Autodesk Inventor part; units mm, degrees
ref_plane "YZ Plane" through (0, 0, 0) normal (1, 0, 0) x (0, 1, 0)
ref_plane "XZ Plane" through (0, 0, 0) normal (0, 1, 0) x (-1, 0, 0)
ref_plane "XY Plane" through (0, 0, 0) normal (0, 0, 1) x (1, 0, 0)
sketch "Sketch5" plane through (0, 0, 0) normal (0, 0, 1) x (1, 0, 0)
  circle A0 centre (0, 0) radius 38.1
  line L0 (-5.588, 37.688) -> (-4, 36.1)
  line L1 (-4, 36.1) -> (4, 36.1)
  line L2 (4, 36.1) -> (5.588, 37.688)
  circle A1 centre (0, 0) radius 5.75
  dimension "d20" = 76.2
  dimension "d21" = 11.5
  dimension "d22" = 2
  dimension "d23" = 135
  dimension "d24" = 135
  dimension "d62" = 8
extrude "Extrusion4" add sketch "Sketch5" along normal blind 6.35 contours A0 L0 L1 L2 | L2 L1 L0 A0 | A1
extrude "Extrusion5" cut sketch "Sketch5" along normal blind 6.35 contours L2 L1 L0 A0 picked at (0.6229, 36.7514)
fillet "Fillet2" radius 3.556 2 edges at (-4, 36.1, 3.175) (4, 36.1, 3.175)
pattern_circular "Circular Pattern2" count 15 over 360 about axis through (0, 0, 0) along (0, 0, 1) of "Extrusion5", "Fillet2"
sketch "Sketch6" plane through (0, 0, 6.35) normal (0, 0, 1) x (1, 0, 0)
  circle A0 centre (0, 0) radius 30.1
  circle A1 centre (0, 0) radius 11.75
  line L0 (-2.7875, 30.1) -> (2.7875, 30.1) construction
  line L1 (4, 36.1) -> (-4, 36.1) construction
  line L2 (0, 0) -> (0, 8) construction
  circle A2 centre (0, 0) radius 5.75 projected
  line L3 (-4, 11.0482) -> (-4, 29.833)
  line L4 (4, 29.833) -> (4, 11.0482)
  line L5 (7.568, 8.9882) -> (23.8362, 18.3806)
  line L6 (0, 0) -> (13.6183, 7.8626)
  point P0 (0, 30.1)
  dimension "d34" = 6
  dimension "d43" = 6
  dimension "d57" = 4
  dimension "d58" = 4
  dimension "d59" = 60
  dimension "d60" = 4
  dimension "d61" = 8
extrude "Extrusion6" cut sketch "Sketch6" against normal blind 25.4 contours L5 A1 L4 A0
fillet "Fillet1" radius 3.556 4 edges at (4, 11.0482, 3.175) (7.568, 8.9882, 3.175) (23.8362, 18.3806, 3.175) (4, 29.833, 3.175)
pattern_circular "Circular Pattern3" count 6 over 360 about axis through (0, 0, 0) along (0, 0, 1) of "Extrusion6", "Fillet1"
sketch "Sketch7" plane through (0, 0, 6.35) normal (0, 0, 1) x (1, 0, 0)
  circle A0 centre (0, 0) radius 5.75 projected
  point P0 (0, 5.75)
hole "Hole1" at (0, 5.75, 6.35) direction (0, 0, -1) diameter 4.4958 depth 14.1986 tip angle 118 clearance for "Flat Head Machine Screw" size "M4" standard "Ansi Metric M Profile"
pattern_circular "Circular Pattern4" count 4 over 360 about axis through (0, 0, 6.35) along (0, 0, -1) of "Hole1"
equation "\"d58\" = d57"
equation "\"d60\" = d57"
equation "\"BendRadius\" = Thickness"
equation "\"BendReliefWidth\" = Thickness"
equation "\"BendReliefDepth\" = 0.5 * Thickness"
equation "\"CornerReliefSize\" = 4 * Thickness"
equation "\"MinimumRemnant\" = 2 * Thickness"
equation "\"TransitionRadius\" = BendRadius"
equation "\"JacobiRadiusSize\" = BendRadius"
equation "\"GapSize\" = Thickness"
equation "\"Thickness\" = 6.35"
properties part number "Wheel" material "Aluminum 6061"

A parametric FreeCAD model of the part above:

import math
import FreeCAD as App
import Part
import Sketcher

V = App.Vector
Q = App.Units.Quantity


def edges_at(feature, points):
    """Names of the edges that pass closest to the given points."""
    edges = feature.Shape.Edges
    near = lambda p: min(range(len(edges)), key=lambda i: edges[i].distToShape(Part.Vertex(*p))[0])
    return sorted({f"Edge{near(p) + 1}" for p in points})

doc = App.newDocument("Part")
body = doc.addObject("PartDesign::Body", "Body")

# Sketch on XY plane
sketch1 = body.newObject("Sketcher::SketchObject", "Sketch")
sketch1.AttachmentSupport = (doc.getObject("XY_Plane"), [""])
sketch1.MapMode = "FlatFace"
sketch1.addGeometry(Part.Circle(V(0, 0, 0), V(0, 0, 1), 38.1), False)
sketch1.addConstraint([
    Sketcher.Constraint("Coincident", 0, 3, -1, 1),
    Sketcher.Constraint("Diameter", 0, Q("3 in")),
])
pad1 = body.newObject("PartDesign::Pad", "Pad")
pad1.Profile = sketch1
pad1.Length = Q("0.25 in")

# Sketch on XY plane
sketch2 = body.newObject("Sketcher::SketchObject", "Sketch001")
sketch2.AttachmentSupport = (doc.getObject("XY_Plane"), [""])
sketch2.MapMode = "FlatFace"
sketch2.addGeometry([
    Part.LineSegment(V(4, 36.1, 0), V(5.588, 37.688, 0)),
    Part.ArcOfCircle(Part.Circle(V(0, 0, 0), V(0, 0, 1), 38.1), math.radians(81.566199), math.radians(98.433801)),
    Part.LineSegment(V(-5.588, 37.688, 0), V(-4, 36.1, 0)),
    Part.LineSegment(V(-4, 36.1, 0), V(4, 36.1, 0)),
], False)
sketch2.addConstraint([
    Sketcher.Constraint("Coincident", 0, 2, 1, 1),
    Sketcher.Constraint("Coincident", 1, 2, 2, 1),
    Sketcher.Constraint("Coincident", 2, 2, 3, 1),
    Sketcher.Constraint("Coincident", 3, 2, 0, 1),
    Sketcher.Constraint("Horizontal", 3),
    Sketcher.Constraint("Coincident", 1, 3, -1, 1),
    Sketcher.Constraint("Perpendicular", 0, 2),
    Sketcher.Constraint("Horizontal", 0, 2, 1, 2),
    Sketcher.Constraint("Equal", 0, 2),
    Sketcher.Constraint("Radius", 1, Q("1.5 in")),
    Sketcher.Constraint("DistanceX", 3, 1, 3, 2, Q("8 mm")),
    Sketcher.Constraint("DistanceX", -1, 1, 0, 2, Q("0.22 in")),
])
pocket1 = body.newObject("PartDesign::Pocket", "Pocket")
pocket1.Profile = sketch2
pocket1.Length = Q("0.25 in")
pocket1.Reversed = True
doc.recompute()

fillet = body.newObject("PartDesign::Fillet", "Fillet")
fillet.Base = (pocket1, edges_at(pocket1, [(-4, 36.1, 3.175), (4, 36.1, 3.175)]))
fillet.Radius = Q("0.14 in")
doc.recompute()

polarpattern = body.newObject("PartDesign::PolarPattern", "PolarPattern")
polarpattern.Originals = [pocket1, fillet]
polarpattern.Axis = (doc.getObject("Z_Axis"), [""])
polarpattern.Angle = 360
polarpattern.Occurrences = 15
body.Tip = polarpattern

# Sketch on XY plane
sketch3 = body.newObject("Sketcher::SketchObject", "Sketch002")
sketch3.AttachmentSupport = (doc.getObject("XY_Plane"), [""])
sketch3.MapMode = "FlatFace"
sketch3.AttachmentOffset = App.Placement(V(0, 0, 0.25 * 25.4), App.Rotation())
sketch3.addGeometry([
    Part.LineSegment(V(7.568, 8.9882, 0), V(23.8362, 18.3806, 0)),
    Part.ArcOfCircle(Part.Circle(V(0, 0, 0), V(0, 0, 1), 30.1), math.radians(37.63658), math.radians(82.363343)),
    Part.LineSegment(V(4, 29.833, 0), V(4, 11.0482, 0)),
    Part.ArcOfCircle(Part.Circle(V(0, 0, 0), V(0, 0, 1), 11.75), math.radians(49.902862), math.radians(70.097215)),
], False)
sketch3.addConstraint([
    Sketcher.Constraint("Coincident", 0, 2, 1, 1),
    Sketcher.Constraint("Coincident", 1, 2, 2, 1),
    Sketcher.Constraint("Coincident", 2, 2, 3, 2),
    Sketcher.Constraint("Coincident", 3, 1, 0, 1),
    Sketcher.Constraint("Vertical", 2),
    Sketcher.Constraint("Coincident", 1, 3, -1, 1),
    Sketcher.Constraint("Coincident", 3, 3, -1, 1),
    Sketcher.Constraint("Angle", 0, Q("29.9999 deg")),
    Sketcher.Constraint("Radius", 3, Q("0.4626 in")),
    Sketcher.Constraint("DistanceX", -1, 1, 1, 2, Q("4 mm")),
    Sketcher.Constraint("Radius", 1, Q("30.1 mm")),
    Sketcher.Constraint("DistanceY", 3, 1, 2, 2, Q("0.0811 in")),
])
pocket2 = body.newObject("PartDesign::Pocket", "Pocket001")
pocket2.Profile = sketch3
pocket2.Length = Q("1 in")
doc.recompute()

fillet2 = body.newObject("PartDesign::Fillet", "Fillet001")
fillet2.Base = (pocket2, edges_at(pocket2, [
    (4, 11.048, 3.175),
    (7.568, 8.988, 3.175),
    (23.836, 18.381, 3.175),
    (4, 29.833, 3.175),
]))
fillet2.Radius = Q("0.14 in")
doc.recompute()

polarpattern2 = body.newObject("PartDesign::PolarPattern", "PolarPattern001")
polarpattern2.Originals = [pocket2, fillet2]
polarpattern2.Axis = (doc.getObject("Z_Axis"), [""])
polarpattern2.Angle = 360
polarpattern2.Occurrences = 6
body.Tip = polarpattern2

# Sketch on XY plane
sketch4 = body.newObject("Sketcher::SketchObject", "Sketch003")
sketch4.AttachmentSupport = (doc.getObject("XY_Plane"), [""])
sketch4.MapMode = "FlatFace"
sketch4.AttachmentOffset = App.Placement(V(0, 0, 0.25 * 25.4), App.Rotation())
sketch4.addGeometry(Part.Circle(V(0, 5.75, 0), V(0, 0, 1), 2.2479), False)
sketch4.addConstraint([
    Sketcher.Constraint("PointOnObject", 0, 3, -2),
    Sketcher.Constraint("Diameter", 0, Q("0.177 in")),
    Sketcher.Constraint("DistanceY", -1, 1, 0, 3, Q("5.75 mm")),
])
doc.recompute()
hole = body.newObject("PartDesign::Hole", "Hole")
hole.Profile = sketch4
hole.ThreadType = "None"
hole.Diameter = Q("0.177 in")
hole.DepthType = "Dimension"
hole.Depth = Q("0.559 in")
hole.DrillPoint = "Angled"
hole.DrillPointAngle = 118
doc.recompute()

polarpattern3 = body.newObject("PartDesign::PolarPattern", "PolarPattern002")
polarpattern3.Originals = [hole]
polarpattern3.Axis = (doc.getObject("Z_Axis"), [""])
polarpattern3.Angle = 360
polarpattern3.Occurrences = 4
body.Tip = polarpattern3

doc.recompute()
